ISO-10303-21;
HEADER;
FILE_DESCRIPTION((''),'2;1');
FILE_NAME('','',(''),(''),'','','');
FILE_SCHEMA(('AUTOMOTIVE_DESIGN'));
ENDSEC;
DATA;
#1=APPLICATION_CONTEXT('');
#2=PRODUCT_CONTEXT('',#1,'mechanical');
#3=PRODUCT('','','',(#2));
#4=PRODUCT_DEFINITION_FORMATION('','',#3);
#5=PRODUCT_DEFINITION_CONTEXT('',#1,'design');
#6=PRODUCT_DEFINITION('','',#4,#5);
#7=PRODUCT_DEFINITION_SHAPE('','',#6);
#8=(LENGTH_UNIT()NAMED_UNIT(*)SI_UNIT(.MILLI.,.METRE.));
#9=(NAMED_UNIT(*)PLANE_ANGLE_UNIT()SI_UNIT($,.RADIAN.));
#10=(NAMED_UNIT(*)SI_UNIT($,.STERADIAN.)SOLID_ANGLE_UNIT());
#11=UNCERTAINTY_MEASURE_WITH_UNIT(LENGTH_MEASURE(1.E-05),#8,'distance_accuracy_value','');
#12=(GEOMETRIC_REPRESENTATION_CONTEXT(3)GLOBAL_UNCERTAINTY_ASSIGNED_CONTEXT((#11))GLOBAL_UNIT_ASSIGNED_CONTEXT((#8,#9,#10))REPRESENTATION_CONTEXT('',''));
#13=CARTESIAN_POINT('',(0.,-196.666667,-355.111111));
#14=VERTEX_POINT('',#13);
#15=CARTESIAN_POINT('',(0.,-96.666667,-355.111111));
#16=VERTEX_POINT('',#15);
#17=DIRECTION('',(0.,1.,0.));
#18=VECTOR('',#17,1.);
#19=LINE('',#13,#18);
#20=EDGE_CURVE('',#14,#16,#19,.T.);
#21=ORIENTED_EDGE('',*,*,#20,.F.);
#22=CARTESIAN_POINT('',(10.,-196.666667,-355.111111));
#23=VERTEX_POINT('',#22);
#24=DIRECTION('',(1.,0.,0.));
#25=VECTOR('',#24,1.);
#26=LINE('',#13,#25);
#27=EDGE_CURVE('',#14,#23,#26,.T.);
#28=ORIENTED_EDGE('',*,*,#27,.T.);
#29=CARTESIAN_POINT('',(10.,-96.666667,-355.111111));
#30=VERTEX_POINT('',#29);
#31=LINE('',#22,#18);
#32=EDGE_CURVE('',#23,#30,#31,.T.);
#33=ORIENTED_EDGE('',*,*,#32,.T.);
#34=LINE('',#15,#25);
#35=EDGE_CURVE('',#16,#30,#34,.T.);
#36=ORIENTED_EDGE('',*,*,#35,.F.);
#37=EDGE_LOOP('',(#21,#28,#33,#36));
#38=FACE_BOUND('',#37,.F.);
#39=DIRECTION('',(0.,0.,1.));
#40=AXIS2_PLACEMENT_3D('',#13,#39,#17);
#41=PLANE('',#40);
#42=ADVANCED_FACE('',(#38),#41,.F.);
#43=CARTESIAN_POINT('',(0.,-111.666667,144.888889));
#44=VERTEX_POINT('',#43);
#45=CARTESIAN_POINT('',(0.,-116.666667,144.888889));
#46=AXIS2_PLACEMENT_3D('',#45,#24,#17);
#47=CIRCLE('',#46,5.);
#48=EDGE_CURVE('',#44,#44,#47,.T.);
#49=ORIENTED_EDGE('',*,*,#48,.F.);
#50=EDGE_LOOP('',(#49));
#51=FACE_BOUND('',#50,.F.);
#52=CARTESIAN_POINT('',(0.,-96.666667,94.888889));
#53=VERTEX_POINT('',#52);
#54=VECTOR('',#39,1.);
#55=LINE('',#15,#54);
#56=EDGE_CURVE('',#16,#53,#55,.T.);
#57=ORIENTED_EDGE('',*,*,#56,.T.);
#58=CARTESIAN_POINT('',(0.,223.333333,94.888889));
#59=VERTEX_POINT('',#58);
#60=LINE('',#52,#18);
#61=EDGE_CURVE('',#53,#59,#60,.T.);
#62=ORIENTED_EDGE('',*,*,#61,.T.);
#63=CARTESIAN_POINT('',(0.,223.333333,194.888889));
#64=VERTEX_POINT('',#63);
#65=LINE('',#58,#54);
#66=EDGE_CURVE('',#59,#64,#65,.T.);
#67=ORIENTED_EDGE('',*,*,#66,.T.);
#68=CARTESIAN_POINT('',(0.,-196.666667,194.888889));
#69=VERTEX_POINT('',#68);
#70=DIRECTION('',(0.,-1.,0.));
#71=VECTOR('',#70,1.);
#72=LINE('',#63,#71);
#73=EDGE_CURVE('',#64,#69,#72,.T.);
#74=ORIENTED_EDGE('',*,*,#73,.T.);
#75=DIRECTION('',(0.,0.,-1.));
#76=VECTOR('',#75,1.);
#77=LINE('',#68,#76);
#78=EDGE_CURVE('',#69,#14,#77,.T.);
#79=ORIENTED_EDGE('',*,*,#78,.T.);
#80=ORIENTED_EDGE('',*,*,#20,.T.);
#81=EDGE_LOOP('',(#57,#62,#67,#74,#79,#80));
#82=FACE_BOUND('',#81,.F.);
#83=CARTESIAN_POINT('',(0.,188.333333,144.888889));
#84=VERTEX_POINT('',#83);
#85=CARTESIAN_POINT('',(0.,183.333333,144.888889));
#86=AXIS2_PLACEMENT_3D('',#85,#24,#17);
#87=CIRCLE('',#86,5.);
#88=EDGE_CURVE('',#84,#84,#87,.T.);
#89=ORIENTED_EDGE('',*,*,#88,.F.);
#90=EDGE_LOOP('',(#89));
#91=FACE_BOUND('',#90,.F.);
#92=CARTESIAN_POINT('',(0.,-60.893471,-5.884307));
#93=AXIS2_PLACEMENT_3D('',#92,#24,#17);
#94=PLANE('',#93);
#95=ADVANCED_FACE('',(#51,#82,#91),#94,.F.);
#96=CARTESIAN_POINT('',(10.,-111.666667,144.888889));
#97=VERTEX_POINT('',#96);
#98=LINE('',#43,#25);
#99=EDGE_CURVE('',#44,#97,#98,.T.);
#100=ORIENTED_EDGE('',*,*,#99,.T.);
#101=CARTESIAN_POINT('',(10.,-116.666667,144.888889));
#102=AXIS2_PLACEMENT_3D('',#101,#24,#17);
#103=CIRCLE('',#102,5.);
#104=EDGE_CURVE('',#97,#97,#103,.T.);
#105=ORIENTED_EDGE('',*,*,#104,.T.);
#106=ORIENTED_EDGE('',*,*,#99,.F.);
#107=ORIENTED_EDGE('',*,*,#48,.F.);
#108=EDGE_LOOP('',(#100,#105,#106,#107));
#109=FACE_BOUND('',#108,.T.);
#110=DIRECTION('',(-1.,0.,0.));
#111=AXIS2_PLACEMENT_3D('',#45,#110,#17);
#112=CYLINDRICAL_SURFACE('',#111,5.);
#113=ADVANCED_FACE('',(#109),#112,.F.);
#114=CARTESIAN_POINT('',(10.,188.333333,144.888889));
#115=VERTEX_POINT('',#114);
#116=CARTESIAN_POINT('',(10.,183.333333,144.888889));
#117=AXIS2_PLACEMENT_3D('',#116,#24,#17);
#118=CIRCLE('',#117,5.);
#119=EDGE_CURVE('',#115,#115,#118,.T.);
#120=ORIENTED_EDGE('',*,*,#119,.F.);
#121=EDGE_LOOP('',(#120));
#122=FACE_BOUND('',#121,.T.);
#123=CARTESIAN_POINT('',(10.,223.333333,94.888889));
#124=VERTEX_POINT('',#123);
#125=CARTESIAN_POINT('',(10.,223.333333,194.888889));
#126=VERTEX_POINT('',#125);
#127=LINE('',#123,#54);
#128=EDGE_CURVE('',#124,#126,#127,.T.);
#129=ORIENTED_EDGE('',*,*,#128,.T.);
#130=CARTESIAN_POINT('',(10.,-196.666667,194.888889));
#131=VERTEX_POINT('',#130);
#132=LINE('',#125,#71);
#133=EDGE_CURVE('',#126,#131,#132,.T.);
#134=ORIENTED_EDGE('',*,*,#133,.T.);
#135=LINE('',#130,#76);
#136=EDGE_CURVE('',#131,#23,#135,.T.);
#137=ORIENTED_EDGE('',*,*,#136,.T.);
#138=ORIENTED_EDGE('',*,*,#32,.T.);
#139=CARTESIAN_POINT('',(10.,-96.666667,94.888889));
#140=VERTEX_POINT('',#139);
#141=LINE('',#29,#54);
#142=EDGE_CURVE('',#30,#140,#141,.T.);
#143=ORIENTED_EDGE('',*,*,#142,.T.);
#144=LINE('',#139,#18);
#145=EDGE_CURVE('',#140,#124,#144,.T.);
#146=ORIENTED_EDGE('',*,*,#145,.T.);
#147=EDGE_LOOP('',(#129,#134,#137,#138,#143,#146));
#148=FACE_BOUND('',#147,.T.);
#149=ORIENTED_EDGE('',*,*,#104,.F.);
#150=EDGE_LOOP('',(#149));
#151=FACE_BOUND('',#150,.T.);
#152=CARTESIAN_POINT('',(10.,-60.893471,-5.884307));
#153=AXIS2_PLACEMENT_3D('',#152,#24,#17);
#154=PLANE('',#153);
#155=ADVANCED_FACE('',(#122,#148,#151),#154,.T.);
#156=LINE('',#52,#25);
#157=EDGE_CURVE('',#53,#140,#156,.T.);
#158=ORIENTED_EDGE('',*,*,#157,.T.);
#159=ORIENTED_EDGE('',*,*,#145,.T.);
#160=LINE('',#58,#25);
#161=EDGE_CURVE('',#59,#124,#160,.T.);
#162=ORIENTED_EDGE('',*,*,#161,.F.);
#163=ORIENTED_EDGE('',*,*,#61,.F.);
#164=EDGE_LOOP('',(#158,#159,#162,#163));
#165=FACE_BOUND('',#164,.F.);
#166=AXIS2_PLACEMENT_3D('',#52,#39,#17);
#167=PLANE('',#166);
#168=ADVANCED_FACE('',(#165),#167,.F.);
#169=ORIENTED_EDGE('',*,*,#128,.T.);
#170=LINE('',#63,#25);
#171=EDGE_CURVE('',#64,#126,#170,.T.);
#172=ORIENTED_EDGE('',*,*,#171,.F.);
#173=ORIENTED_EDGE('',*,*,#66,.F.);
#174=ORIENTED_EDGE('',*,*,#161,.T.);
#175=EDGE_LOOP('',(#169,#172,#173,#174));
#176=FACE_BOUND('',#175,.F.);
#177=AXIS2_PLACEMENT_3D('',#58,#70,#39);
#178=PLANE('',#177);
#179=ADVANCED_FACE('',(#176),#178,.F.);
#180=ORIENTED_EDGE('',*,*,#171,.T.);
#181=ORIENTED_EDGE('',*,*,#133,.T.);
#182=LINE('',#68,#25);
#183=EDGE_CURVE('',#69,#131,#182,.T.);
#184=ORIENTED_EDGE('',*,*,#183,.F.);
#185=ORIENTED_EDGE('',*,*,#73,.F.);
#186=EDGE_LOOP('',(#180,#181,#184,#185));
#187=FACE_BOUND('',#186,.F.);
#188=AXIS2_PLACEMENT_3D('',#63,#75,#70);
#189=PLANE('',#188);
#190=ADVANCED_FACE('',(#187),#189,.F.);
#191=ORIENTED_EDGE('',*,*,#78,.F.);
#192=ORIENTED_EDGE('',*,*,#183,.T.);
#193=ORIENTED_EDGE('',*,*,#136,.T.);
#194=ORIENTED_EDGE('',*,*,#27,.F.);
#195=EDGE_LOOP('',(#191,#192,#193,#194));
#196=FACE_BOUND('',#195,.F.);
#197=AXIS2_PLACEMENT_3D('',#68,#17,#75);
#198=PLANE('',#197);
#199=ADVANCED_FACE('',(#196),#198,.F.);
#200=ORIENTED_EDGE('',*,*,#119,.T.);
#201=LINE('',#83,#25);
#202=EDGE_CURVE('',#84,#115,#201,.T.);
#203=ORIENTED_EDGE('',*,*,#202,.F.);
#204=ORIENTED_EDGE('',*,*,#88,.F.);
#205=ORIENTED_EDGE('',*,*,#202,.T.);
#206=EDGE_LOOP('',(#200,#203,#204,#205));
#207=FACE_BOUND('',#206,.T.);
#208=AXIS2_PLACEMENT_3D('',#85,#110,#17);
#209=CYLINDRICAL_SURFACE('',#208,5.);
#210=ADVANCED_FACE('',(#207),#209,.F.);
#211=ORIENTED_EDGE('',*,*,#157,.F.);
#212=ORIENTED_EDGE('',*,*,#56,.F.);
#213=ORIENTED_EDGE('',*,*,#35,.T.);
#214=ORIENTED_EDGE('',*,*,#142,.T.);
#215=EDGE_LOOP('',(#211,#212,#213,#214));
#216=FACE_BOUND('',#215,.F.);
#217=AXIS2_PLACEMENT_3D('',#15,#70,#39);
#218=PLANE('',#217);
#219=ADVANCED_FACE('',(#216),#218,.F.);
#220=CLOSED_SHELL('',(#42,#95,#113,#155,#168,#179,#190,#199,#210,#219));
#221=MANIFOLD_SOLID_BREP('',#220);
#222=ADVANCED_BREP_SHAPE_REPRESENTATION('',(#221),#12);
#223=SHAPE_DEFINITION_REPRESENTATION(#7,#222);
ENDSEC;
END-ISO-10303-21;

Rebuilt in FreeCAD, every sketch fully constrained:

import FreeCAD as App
import Part
import Sketcher
Q = App.Units.Quantity


def add_polygon(sketch, points):
    """Adds a closed chain of lines whose ends are joined by coincident constraints."""
    first, n = sketch.GeometryCount, len(points)
    for a, b in zip(points, points[1:] + points[:1]):
        sketch.addGeometry(Part.LineSegment(App.Vector(*a, 0), App.Vector(*b, 0)), False)
    for i in range(n):
        sketch.addConstraint(Sketcher.Constraint("Coincident", first + i, 2, first + (i + 1) % n, 1))

doc = App.newDocument("Part")
body = doc.addObject("PartDesign::Body", "Body")

sketch1 = doc.addObject("Sketcher::SketchObject", "Sketch")
body.addObject(sketch1)
sketch1.AttachmentSupport = (doc.YZ_Plane, [""])
sketch1.MapMode = "FlatFace"
add_polygon(sketch1, [(223, 95), (223, 195), (-197, 195), (-197, -355), (-97, -355), (-97, 95)])
sketch1.addGeometry(Part.Circle(App.Vector(-117, 145, 0), App.Vector(0, 0, 1), 5), False)
sketch1.addGeometry(Part.Circle(App.Vector(183, 145, 0), App.Vector(0, 0, 1), 5), False)
sketch1.addConstraint([
    Sketcher.Constraint("Vertical", 0),
    Sketcher.Constraint("Horizontal", 1),
    Sketcher.Constraint("Vertical", 2),
    Sketcher.Constraint("Horizontal", 3),
    Sketcher.Constraint("Vertical", 4),
    Sketcher.Constraint("Horizontal", 5),
    Sketcher.Constraint("Equal", 6, 7),
    Sketcher.Constraint("Horizontal", 6, 3, 7, 3),
    Sketcher.Constraint("Equal", 3, 0),
    Sketcher.Constraint("Diameter", 6, Q("10 mm")),
    Sketcher.Constraint("DistanceX", 1, 2, 1, 1, Q("420 mm")),
    Sketcher.Constraint("DistanceX", 3, 1, 3, 2, Q("100 mm")),
    Sketcher.Constraint("DistanceY", 2, 2, 2, 1, Q("550 mm")),
    Sketcher.Constraint("DistanceX", 6, 3, 7, 3, Q("300 mm")),
    Sketcher.Constraint("DistanceX", 7, 3, 0, 2, Q("40 mm")),
    Sketcher.Constraint("DistanceY", 7, 3, 0, 2, Q("50 mm")),
    Sketcher.Constraint("DistanceY", -1, 1, 6, 3, Q("144.888889 mm")),
    Sketcher.Constraint("DistanceX", 6, 3, -1, 1, Q("116.666667 mm")),
])
pad1 = doc.addObject("PartDesign::Pad", "Pad")
body.addObject(pad1)
pad1.Profile = sketch1
pad1.Length = 10

doc.recompute()
